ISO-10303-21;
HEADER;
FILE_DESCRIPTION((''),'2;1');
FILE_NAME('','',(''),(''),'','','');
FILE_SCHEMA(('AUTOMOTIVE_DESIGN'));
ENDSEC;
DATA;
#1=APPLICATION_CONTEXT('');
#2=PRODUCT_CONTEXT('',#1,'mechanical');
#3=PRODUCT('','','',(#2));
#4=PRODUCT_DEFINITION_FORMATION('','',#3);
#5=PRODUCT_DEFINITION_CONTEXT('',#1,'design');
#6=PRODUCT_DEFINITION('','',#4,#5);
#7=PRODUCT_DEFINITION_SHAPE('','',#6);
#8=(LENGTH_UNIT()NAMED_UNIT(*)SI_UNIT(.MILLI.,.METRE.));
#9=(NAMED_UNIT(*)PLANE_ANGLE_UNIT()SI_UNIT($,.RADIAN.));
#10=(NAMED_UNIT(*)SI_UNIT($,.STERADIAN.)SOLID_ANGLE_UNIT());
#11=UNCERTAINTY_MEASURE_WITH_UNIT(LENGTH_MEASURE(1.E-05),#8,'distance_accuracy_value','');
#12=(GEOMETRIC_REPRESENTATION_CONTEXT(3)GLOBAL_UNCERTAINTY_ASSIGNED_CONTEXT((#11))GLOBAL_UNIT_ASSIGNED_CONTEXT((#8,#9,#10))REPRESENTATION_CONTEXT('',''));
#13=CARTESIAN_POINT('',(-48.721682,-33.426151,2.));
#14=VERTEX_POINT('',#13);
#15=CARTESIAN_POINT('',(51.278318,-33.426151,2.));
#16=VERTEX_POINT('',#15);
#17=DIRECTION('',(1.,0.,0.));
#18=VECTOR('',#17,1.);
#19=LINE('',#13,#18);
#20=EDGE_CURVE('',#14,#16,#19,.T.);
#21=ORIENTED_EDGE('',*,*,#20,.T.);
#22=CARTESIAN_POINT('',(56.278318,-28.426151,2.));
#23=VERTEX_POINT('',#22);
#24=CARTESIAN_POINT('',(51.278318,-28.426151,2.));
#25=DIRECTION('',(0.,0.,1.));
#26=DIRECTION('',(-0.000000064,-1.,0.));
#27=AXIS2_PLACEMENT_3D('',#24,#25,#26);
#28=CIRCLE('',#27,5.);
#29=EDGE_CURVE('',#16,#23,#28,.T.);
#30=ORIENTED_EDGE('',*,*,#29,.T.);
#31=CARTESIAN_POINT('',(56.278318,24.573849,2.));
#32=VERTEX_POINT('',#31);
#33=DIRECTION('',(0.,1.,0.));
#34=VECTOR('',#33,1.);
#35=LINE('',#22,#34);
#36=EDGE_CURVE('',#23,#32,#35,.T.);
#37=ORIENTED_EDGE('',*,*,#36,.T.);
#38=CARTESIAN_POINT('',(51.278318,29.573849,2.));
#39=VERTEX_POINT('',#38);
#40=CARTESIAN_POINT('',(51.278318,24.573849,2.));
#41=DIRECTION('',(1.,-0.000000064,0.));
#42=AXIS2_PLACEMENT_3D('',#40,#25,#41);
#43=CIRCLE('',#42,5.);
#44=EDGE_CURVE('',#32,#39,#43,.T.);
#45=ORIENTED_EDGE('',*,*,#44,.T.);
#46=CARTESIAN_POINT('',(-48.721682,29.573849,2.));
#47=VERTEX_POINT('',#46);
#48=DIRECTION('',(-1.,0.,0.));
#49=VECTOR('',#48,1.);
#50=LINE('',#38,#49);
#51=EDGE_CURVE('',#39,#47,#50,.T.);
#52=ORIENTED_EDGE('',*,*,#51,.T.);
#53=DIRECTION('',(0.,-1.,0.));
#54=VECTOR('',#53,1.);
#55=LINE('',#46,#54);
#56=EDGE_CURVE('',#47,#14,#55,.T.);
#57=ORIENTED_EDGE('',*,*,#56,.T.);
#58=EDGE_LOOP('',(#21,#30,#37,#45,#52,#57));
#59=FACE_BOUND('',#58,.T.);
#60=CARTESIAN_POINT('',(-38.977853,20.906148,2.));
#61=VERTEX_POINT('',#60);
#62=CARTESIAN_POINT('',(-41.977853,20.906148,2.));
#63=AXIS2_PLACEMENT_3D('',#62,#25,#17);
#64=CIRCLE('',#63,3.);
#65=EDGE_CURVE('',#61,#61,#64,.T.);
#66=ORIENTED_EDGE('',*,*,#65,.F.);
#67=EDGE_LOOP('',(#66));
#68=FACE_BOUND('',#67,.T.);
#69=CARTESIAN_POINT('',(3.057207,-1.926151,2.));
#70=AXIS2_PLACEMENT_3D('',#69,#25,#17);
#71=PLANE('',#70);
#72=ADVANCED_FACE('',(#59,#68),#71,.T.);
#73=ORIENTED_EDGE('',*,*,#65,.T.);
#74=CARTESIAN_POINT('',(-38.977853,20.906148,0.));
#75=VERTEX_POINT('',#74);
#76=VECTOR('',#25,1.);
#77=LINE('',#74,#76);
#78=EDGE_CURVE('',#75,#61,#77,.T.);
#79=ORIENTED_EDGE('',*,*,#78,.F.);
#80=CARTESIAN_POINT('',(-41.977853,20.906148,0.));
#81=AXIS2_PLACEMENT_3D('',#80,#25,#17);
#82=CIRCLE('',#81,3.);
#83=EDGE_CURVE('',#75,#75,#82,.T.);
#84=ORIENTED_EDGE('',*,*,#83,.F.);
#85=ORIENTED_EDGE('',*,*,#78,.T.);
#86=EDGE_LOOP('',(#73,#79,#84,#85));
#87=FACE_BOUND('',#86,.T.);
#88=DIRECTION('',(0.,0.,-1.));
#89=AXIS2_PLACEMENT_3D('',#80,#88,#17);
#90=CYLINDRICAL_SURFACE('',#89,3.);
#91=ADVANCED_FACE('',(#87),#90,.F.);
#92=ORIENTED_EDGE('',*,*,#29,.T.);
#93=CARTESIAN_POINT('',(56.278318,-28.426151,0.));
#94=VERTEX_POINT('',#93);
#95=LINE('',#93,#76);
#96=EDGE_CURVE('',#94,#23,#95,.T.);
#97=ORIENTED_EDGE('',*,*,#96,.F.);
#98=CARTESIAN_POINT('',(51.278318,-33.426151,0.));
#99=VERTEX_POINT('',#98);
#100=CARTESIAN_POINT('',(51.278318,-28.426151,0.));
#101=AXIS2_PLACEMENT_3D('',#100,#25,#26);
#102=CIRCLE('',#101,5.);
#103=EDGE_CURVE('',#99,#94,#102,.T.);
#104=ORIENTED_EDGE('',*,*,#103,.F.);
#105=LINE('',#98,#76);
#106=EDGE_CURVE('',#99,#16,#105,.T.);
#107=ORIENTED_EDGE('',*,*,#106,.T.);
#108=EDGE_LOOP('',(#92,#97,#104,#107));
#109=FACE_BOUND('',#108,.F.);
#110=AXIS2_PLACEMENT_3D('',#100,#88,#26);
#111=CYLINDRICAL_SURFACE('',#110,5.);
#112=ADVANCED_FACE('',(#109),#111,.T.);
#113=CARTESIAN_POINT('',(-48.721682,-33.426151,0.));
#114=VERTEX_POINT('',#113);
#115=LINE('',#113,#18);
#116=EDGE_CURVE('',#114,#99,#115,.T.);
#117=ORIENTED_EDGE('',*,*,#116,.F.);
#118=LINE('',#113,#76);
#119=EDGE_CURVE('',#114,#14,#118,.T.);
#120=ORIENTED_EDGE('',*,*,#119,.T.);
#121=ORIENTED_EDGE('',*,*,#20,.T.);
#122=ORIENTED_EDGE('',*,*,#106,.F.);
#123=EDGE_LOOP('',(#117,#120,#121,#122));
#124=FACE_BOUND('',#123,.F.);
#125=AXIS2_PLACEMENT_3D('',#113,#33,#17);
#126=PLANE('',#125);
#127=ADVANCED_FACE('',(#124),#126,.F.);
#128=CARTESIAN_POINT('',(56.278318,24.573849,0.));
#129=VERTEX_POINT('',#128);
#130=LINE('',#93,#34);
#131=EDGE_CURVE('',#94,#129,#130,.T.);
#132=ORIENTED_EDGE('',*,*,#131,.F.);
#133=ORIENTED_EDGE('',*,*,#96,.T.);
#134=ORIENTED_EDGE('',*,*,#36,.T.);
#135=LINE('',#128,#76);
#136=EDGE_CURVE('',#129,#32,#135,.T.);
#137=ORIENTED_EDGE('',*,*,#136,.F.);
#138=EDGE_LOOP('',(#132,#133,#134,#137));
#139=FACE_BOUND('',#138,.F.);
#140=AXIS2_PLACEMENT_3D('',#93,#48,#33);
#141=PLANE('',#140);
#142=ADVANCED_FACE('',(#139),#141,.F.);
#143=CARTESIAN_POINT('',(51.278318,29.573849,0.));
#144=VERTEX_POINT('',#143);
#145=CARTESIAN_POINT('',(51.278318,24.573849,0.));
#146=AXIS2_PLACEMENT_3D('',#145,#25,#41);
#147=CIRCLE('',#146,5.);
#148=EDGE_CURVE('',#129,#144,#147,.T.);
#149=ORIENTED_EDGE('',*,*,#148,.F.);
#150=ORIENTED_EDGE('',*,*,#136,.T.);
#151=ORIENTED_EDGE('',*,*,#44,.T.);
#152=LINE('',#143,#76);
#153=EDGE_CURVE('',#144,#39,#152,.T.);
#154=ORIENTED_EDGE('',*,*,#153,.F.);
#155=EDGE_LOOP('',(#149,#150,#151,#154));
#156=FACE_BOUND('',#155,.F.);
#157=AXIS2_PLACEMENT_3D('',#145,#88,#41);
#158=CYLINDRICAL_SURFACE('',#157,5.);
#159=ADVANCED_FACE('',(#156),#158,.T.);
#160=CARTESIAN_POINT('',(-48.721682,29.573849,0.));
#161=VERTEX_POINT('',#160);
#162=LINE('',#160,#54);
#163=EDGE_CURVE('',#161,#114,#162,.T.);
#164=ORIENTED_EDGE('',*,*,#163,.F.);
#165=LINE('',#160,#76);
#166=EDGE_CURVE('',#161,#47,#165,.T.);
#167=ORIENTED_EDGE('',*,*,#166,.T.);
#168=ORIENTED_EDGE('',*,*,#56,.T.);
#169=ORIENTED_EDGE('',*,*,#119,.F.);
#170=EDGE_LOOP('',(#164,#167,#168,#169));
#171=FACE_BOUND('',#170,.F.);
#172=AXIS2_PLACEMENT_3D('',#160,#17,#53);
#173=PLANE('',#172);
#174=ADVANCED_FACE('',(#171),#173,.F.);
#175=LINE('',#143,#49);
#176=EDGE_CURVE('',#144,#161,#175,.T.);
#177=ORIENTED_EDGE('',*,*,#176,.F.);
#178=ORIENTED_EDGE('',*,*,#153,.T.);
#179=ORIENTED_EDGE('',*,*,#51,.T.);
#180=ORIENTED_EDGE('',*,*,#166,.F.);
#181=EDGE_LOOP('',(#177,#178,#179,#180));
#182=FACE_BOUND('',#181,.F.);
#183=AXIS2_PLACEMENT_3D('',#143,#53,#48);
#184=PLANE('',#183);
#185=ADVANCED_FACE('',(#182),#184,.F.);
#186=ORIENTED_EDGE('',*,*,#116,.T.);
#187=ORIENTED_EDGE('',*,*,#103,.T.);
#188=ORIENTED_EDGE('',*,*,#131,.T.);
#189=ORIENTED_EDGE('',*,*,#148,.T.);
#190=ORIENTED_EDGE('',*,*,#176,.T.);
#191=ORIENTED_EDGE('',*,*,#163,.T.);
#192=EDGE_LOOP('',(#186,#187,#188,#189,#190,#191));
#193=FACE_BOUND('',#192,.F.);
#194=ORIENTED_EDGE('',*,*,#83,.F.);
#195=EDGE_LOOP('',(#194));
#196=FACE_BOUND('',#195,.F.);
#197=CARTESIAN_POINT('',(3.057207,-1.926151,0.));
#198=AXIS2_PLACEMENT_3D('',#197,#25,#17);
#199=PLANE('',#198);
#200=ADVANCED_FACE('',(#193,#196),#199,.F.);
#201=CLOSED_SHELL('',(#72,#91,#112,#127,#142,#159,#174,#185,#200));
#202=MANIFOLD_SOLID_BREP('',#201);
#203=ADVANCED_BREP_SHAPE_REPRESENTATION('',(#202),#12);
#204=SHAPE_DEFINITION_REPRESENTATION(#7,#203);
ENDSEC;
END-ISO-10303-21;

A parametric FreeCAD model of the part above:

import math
import FreeCAD as App
import Part
import Sketcher

doc = App.newDocument("Part")
params = doc.addObject("Spreadsheet::Sheet", "Params")
for row, (alias, value) in enumerate([
    ("sketch1_diameter", "6 mm"),
    ("sketch1_radius", "5 mm"),
    ("sketch1_width", "100 mm"),
    ("sketch1_height", "53 mm"),
    ("pad1_length", "2 mm"),
], start=1):
    params.set(f"A{row}", alias)
    params.set(f"B{row}", "=" + value)
    params.setAlias(f"B{row}", alias)

body = doc.addObject("PartDesign::Body", "Body")

sketch1 = body.newObject("Sketcher::SketchObject", "Sketch")
sketch1.AttachmentSupport = (doc.getObject("XY_Plane"), [""])
sketch1.MapMode = "FlatFace"
sketch1.addGeometry([
    Part.LineSegment(App.Vector(56.278318, -28.426151, 0), App.Vector(56.278318, 24.573849, 0)),
    Part.ArcOfCircle(Part.Circle(App.Vector(51.278318, 24.573849, 0), App.Vector(0, 0, 1), 5), math.radians(-0.000004), math.radians(90.000004)),
    Part.LineSegment(App.Vector(51.278318, 29.573849, 0), App.Vector(-48.721682, 29.573849, 0)),
    Part.LineSegment(App.Vector(-48.721682, 29.573849, 0), App.Vector(-48.721682, -33.426151, 0)),
    Part.LineSegment(App.Vector(-48.721682, -33.426151, 0), App.Vector(51.278318, -33.426151, 0)),
    Part.ArcOfCircle(Part.Circle(App.Vector(51.278318, -28.426151, 0), App.Vector(0, 0, 1), 5), math.radians(-90.000004), math.radians(0.000004)),
    Part.Circle(App.Vector(-41.977853, 20.906148, 0), App.Vector(0, 0, 1), 3),
], False)
sketch1.addConstraint([
    Sketcher.Constraint("Tangent", 0, 2, 1, 1),
    Sketcher.Constraint("Tangent", 1, 2, 2, 1),
    Sketcher.Constraint("Coincident", 2, 2, 3, 1),
    Sketcher.Constraint("Coincident", 3, 2, 4, 1),
    Sketcher.Constraint("Tangent", 4, 2, 5, 1),
    Sketcher.Constraint("Tangent", 5, 2, 0, 1),
    Sketcher.Constraint("Vertical", 0),
    Sketcher.Constraint("Horizontal", 2),
    Sketcher.Constraint("Vertical", 3),
    Sketcher.Constraint("Horizontal", 4),
    Sketcher.Constraint("Equal", 1, 5),
    Sketcher.Constraint("Diameter", 6, 6.0),
    Sketcher.Constraint("Radius", 1, 5.0),
    Sketcher.Constraint("DistanceX", 2, 2, 2, 1, 100.0),
    Sketcher.Constraint("DistanceY", 0, 1, 0, 2, 53.0),
    Sketcher.Constraint("DistanceY", 6, 3, 1, 3, 3.667701),
    Sketcher.Constraint("DistanceX", -1, 1, 1, 3, 51.278318),
    Sketcher.Constraint("DistanceY", -1, 1, 1, 3, 24.573849),
    Sketcher.Constraint("DistanceX", 6, 3, 1, 3, 93.256171),
])
sketch1.setExpression("Constraints[11]", "Params.sketch1_diameter")
sketch1.setExpression("Constraints[12]", "Params.sketch1_radius")
sketch1.setExpression("Constraints[13]", "Params.sketch1_width")
sketch1.setExpression("Constraints[14]", "Params.sketch1_height")
pad1 = body.newObject("PartDesign::Pad", "Pad")
pad1.Profile = sketch1
pad1.setExpression("Length", "Params.pad1_length")

doc.recompute()
